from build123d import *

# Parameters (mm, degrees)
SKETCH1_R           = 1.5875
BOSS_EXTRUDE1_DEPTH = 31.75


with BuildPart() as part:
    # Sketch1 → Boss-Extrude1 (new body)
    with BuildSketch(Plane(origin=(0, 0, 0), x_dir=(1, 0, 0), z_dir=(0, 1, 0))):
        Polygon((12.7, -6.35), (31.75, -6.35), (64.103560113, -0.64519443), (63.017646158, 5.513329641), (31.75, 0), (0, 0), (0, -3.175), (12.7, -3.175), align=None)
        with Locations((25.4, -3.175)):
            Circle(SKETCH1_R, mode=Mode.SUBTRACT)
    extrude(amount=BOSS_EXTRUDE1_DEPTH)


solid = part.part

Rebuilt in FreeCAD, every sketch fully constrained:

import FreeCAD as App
import Part
import Sketcher
Q = App.Units.Quantity

doc = App.newDocument("Part")
body = doc.addObject("PartDesign::Body", "Body")

sketch1 = body.newObject("Sketcher::SketchObject", "Sketch")
sketch1.AttachmentSupport = (doc.getObject("XZ_Plane"), [""])
sketch1.MapMode = "FlatFace"
sketch1.addGeometry([
    Part.LineSegment(App.Vector(12.7, 6.3, 0), App.Vector(31.8, 6.3, 0)),
    Part.LineSegment(App.Vector(31.8, 6.3, 0), App.Vector(64.1, 0.6, 0)),
    Part.LineSegment(App.Vector(64.1, 0.6, 0), App.Vector(63, -5.5, 0)),
    Part.LineSegment(App.Vector(63, -5.5, 0), App.Vector(31.8, 0, 0)),
    Part.LineSegment(App.Vector(31.8, 0, 0), App.Vector(0, 0, 0)),
    Part.LineSegment(App.Vector(0, 0, 0), App.Vector(0, 3.2, 0)),
    Part.LineSegment(App.Vector(0, 3.2, 0), App.Vector(12.7, 3.2, 0)),
    Part.LineSegment(App.Vector(12.7, 3.2, 0), App.Vector(12.7, 6.3, 0)),
    Part.Circle(App.Vector(25.4, 3.2, 0), App.Vector(0, 0, 1), 1.6),
], False)
sketch1.addConstraint([
    Sketcher.Constraint("Coincident", 0, 2, 1, 1),
    Sketcher.Constraint("Coincident", 1, 2, 2, 1),
    Sketcher.Constraint("Coincident", 2, 2, 3, 1),
    Sketcher.Constraint("Coincident", 3, 2, 4, 1),
    Sketcher.Constraint("Coincident", 4, 2, 5, 1),
    Sketcher.Constraint("Coincident", 5, 2, 6, 1),
    Sketcher.Constraint("Coincident", 6, 2, 7, 1),
    Sketcher.Constraint("Coincident", 7, 2, 0, 1),
    Sketcher.Constraint("Horizontal", 0),
    Sketcher.Constraint("Horizontal", 4),
    Sketcher.Constraint("Vertical", 5),
    Sketcher.Constraint("Horizontal", 6),
    Sketcher.Constraint("Vertical", 7),
    Sketcher.Constraint("Coincident", 4, 2, -1, 1),
    Sketcher.Constraint("Perpendicular", 1, 2),
    Sketcher.Constraint("Perpendicular", 2, 3),
    Sketcher.Constraint("Horizontal", 8, 3, 5, 2),
    Sketcher.Constraint("Vertical", 0, 2, 3, 2),
    Sketcher.Constraint("Equal", 5, 7),
    Sketcher.Constraint("Diameter", 8, Q("0.125 in")),
    Sketcher.Constraint("DistanceX", 6, 1, 6, 2, Q("0.5 in")),
    Sketcher.Constraint("DistanceX", -1, 1, 8, 3, Q("1 in")),
    Sketcher.Constraint("Angle", 1, Q("-10 deg")),
    Sketcher.Constraint("DistanceX", 0, 1, 0, 2, Q("0.75 in")),
    Sketcher.Constraint("Distance", 3, Q("1.25 in")),
    Sketcher.Constraint("DistanceY", 5, 1, 5, 2, Q("0.125 in")),
])
pad1 = body.newObject("PartDesign::Pad", "Pad")
pad1.Profile = sketch1
pad1.Length = Q("1.25 in")
pad1.Reversed = True

doc.recompute()
